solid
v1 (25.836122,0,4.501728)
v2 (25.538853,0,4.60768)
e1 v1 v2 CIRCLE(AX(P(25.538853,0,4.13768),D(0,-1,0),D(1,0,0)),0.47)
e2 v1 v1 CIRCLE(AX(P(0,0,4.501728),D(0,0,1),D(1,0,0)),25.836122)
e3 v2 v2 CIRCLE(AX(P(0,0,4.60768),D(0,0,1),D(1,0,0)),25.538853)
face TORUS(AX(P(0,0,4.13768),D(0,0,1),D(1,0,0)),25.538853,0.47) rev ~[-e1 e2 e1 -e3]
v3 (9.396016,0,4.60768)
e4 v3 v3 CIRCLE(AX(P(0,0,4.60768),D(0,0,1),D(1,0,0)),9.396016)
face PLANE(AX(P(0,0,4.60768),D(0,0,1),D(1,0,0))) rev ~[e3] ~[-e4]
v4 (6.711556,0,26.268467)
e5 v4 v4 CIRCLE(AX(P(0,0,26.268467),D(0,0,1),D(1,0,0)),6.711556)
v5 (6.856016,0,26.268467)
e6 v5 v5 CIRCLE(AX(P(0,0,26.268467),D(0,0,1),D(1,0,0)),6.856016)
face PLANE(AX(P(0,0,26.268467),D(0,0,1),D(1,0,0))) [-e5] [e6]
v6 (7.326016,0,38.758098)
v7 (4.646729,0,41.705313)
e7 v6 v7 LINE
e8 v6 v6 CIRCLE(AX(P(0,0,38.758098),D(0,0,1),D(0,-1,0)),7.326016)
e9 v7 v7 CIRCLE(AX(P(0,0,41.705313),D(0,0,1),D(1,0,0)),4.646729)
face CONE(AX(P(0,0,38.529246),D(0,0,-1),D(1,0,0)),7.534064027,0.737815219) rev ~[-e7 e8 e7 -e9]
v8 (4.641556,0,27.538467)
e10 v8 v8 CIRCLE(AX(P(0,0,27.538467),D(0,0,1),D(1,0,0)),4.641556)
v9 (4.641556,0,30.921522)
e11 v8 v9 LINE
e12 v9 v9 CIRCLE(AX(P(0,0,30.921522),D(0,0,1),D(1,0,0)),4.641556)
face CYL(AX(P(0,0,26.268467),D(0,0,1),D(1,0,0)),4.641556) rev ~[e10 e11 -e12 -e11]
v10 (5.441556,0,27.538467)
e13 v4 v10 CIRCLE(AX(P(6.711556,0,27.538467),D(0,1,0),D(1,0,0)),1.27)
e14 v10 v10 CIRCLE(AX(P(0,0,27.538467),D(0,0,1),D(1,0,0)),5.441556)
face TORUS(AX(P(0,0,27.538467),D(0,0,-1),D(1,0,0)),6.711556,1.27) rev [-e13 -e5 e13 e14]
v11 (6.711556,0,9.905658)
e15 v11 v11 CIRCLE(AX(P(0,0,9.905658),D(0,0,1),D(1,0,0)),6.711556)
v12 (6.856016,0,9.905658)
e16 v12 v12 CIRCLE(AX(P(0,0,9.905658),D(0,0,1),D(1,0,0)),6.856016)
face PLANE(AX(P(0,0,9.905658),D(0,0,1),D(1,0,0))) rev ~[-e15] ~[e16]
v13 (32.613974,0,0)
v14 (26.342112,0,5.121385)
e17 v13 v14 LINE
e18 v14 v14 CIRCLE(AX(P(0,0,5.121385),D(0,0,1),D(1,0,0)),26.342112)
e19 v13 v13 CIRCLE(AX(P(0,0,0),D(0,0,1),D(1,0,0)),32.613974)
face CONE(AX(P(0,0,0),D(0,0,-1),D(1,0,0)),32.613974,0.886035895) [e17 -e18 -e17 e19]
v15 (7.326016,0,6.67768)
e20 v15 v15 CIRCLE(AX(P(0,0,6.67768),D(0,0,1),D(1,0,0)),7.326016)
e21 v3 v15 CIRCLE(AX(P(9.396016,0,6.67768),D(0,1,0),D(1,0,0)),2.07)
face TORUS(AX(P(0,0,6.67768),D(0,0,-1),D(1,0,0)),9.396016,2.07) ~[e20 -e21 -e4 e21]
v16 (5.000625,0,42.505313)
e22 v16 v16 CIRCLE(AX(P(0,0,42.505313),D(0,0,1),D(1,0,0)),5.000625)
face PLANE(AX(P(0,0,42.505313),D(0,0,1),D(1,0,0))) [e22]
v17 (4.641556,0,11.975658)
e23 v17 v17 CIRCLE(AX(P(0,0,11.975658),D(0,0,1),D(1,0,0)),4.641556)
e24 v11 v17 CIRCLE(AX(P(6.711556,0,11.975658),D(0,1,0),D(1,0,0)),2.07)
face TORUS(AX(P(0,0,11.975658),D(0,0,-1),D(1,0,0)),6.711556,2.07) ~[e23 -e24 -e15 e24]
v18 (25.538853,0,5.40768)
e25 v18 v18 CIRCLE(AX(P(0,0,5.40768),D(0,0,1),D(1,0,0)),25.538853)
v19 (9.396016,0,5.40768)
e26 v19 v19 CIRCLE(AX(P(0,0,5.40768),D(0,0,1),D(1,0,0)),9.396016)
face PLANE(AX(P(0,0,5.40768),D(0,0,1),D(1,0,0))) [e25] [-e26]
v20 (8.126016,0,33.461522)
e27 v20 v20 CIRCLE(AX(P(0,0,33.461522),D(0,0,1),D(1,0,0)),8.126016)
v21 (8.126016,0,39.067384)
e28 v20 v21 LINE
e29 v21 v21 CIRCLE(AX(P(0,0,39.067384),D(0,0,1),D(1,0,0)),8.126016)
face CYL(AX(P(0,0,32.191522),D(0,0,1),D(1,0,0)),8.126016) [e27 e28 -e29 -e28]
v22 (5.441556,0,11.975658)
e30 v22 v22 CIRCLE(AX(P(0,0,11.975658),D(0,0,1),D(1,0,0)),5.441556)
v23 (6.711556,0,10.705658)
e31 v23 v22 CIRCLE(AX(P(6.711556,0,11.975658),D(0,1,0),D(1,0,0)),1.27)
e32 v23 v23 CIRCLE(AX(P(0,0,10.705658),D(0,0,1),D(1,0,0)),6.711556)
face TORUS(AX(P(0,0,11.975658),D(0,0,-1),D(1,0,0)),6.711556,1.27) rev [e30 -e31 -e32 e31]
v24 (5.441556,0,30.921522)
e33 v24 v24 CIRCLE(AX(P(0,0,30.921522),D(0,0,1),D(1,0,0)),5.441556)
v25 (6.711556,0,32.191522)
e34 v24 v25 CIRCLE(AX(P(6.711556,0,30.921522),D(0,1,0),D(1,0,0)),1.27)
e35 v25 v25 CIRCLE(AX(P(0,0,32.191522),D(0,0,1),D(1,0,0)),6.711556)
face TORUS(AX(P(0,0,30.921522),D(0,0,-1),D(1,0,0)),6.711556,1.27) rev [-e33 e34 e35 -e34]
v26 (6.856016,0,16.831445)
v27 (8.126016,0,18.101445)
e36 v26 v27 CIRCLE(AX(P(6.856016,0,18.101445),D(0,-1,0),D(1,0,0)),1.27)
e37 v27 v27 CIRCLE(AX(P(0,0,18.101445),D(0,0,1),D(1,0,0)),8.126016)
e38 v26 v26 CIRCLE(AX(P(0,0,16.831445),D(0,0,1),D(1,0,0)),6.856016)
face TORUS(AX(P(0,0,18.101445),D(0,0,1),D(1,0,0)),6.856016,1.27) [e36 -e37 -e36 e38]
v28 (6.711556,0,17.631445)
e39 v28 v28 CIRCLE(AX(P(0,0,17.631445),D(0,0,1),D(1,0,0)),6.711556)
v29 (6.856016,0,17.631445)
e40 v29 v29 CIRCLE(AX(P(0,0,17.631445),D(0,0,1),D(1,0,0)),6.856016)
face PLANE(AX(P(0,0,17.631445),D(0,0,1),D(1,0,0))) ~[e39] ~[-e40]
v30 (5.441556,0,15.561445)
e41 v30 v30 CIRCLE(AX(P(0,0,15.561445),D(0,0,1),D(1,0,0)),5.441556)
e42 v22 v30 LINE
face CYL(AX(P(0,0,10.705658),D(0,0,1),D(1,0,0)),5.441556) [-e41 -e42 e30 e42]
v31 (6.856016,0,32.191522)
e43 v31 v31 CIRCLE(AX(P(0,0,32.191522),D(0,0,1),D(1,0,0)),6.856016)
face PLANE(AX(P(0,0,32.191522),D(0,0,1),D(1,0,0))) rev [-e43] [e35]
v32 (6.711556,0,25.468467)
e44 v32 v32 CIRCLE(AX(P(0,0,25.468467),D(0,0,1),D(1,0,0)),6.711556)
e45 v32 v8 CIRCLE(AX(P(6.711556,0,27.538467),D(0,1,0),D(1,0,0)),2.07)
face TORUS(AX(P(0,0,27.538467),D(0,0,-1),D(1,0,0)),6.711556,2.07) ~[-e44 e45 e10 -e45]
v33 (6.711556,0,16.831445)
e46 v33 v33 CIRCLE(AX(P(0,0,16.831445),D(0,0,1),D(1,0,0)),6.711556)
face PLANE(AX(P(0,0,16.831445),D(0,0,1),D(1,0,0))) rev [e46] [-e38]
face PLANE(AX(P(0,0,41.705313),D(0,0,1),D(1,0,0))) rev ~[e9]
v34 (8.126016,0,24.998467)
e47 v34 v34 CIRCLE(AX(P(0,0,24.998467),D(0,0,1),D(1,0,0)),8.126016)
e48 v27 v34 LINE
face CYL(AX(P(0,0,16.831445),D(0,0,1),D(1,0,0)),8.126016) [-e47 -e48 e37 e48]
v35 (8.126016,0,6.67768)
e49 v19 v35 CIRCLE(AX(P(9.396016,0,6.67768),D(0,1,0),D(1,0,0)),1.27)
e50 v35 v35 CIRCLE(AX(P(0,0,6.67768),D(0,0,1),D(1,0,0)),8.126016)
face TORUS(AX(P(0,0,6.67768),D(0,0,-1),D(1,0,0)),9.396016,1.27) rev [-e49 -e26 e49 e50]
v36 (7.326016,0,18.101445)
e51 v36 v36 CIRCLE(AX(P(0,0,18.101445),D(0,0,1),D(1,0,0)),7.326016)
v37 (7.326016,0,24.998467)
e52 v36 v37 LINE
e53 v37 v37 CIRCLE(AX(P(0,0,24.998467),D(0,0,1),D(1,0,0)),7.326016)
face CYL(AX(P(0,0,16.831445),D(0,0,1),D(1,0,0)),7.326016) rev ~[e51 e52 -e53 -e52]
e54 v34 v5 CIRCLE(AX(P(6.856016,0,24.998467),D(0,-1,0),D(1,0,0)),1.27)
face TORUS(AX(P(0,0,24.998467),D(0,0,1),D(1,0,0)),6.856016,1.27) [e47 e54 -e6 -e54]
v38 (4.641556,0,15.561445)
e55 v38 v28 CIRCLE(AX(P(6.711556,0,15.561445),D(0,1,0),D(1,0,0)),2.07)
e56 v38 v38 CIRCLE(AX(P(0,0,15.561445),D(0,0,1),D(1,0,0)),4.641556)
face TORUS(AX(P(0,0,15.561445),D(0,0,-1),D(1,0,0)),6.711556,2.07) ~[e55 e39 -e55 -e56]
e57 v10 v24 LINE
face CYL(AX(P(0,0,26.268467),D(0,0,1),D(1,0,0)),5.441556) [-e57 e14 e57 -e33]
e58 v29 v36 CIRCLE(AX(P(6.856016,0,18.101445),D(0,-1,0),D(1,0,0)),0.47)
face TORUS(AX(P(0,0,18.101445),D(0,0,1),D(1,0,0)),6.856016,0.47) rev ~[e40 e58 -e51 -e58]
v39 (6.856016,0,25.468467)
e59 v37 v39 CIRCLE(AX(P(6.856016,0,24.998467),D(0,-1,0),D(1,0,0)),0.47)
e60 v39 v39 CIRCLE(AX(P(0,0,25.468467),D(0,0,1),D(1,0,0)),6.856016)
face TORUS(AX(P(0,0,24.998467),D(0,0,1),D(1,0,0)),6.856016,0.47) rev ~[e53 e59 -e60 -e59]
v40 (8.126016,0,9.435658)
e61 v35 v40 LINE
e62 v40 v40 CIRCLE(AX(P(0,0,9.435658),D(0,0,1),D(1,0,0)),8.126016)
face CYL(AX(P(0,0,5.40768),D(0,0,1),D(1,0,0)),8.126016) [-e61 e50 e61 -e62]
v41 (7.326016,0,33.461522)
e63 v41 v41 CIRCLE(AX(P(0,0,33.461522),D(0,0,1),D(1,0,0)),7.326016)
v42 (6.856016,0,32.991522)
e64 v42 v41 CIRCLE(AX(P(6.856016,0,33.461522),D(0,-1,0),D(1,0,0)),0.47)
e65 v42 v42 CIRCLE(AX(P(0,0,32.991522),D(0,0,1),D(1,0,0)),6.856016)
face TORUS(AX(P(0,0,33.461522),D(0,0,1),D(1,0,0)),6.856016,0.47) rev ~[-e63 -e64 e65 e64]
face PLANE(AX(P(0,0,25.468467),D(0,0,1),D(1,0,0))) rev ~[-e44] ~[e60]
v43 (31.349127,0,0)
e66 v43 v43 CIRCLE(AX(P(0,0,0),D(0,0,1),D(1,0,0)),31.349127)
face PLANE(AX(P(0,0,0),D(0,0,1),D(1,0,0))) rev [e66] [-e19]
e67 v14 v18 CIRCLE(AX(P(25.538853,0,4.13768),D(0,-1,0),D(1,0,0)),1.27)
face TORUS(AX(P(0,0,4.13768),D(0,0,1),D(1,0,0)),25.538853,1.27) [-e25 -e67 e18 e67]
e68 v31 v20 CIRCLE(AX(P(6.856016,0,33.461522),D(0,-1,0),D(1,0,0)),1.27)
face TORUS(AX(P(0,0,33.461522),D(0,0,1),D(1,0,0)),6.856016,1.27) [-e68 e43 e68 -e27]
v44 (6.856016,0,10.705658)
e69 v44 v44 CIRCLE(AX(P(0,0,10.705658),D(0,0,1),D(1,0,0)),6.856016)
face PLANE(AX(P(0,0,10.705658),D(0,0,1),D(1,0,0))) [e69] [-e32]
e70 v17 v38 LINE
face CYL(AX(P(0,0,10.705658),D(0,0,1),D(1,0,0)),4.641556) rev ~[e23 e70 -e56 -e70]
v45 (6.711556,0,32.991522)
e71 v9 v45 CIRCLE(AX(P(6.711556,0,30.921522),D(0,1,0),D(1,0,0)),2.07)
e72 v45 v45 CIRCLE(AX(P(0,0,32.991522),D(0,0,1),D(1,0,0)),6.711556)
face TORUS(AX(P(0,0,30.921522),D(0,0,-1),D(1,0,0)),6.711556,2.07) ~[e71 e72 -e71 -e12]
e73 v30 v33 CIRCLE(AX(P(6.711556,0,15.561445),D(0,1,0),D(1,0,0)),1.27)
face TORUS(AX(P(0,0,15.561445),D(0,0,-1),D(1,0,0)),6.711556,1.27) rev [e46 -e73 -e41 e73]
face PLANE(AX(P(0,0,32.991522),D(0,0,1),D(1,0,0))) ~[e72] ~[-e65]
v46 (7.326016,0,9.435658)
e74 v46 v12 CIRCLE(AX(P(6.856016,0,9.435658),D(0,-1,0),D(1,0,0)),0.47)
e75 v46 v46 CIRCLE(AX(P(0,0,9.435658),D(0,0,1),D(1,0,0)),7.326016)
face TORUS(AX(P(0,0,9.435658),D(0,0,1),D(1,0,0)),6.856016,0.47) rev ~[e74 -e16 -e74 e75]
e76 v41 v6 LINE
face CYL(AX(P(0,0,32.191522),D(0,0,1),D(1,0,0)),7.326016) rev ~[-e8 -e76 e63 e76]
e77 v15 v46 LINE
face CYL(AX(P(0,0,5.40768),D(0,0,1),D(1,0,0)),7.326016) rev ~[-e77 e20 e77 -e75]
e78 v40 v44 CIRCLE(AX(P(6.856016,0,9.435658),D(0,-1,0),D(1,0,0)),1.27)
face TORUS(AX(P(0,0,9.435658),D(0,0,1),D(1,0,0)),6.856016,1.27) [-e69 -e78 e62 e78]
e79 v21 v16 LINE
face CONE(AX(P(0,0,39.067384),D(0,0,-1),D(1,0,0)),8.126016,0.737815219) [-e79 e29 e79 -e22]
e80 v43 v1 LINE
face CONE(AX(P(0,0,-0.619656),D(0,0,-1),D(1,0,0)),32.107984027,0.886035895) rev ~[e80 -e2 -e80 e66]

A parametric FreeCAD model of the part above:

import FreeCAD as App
import Part
import Sketcher


def edges_at(feature, points):
    """Names of the edges that pass closest to the given points."""
    edges = feature.Shape.Edges
    near = lambda p: min(range(len(edges)), key=lambda i: edges[i].distToShape(Part.Vertex(*p))[0])
    return sorted({f"Edge{near(p) + 1}" for p in points})


def faces_at(feature, points):
    """Names of the faces that lie closest to the given points."""
    faces = feature.Shape.Faces
    near = lambda p: min(range(len(faces)), key=lambda i: faces[i].distToShape(Part.Vertex(*p))[0])
    return sorted({f"Face{near(p) + 1}" for p in points})

doc = App.newDocument("Part")
body = doc.addObject("PartDesign::Body", "Body")

# Sketch on XZ plane
sketch1 = doc.addObject("Sketcher::SketchObject", "Sketch")
body.addObject(sketch1)
sketch1.AttachmentSupport = (doc.XZ_Plane, [""])
sketch1.MapMode = "FlatFace"
sketch1.addGeometry([
    Part.LineSegment(App.Vector(0, 42.5, 0), App.Vector(0, 0, 0)),  # 0
    Part.LineSegment(App.Vector(0, 0, 0), App.Vector(32.6, 0, 0)),  # 1
    Part.LineSegment(App.Vector(32.6, 0, 0), App.Vector(26, 5.4, 0)),  # 2
    Part.LineSegment(App.Vector(26, 5.4, 0), App.Vector(8.1, 5.4, 0)),  # 3
    Part.LineSegment(App.Vector(8.1, 5.4, 0), App.Vector(8.1, 10.7, 0)),  # 4
    Part.LineSegment(App.Vector(8.1, 10.7, 0), App.Vector(5.4, 10.7, 0)),  # 5
    Part.LineSegment(App.Vector(5.4, 10.7, 0), App.Vector(5.4, 16.8, 0)),  # 6
    Part.LineSegment(App.Vector(5.4, 16.8, 0), App.Vector(8.1, 16.8, 0)),  # 7
    Part.LineSegment(App.Vector(8.1, 16.8, 0), App.Vector(8.1, 26.3, 0)),  # 8
    Part.LineSegment(App.Vector(8.1, 26.3, 0), App.Vector(5.4, 26.3, 0)),  # 9
    Part.LineSegment(App.Vector(5.4, 26.3, 0), App.Vector(5.4, 32.2, 0)),  # 10
    Part.LineSegment(App.Vector(5.4, 32.2, 0), App.Vector(8.1, 32.2, 0)),  # 11
    Part.LineSegment(App.Vector(8.1, 32.2, 0), App.Vector(8.1, 39.1, 0)),  # 12
    Part.LineSegment(App.Vector(8.1, 39.1, 0), App.Vector(5, 42.5, 0)),  # 13
    Part.LineSegment(App.Vector(5, 42.5, 0), App.Vector(0, 42.5, 0)),  # 14
], False)
sketch1.addConstraint([
    Sketcher.Constraint("Coincident", 0, 2, 1, 1),
    Sketcher.Constraint("Coincident", 1, 2, 2, 1),
    Sketcher.Constraint("Coincident", 2, 2, 3, 1),
    Sketcher.Constraint("Coincident", 3, 2, 4, 1),
    Sketcher.Constraint("Coincident", 4, 2, 5, 1),
    Sketcher.Constraint("Coincident", 5, 2, 6, 1),
    Sketcher.Constraint("Coincident", 6, 2, 7, 1),
    Sketcher.Constraint("Coincident", 7, 2, 8, 1),
    Sketcher.Constraint("Coincident", 8, 2, 9, 1),
    Sketcher.Constraint("Coincident", 9, 2, 10, 1),
    Sketcher.Constraint("Coincident", 10, 2, 11, 1),
    Sketcher.Constraint("Coincident", 11, 2, 12, 1),
    Sketcher.Constraint("Coincident", 12, 2, 13, 1),
    Sketcher.Constraint("Coincident", 13, 2, 14, 1),
    Sketcher.Constraint("Coincident", 14, 2, 0, 1),
    Sketcher.Constraint("Vertical", 0),
    Sketcher.Constraint("Horizontal", 1),
    Sketcher.Constraint("Horizontal", 3),
    Sketcher.Constraint("Vertical", 4),
    Sketcher.Constraint("Horizontal", 5),
    Sketcher.Constraint("Vertical", 6),
    Sketcher.Constraint("Horizontal", 7),
    Sketcher.Constraint("Vertical", 8),
    Sketcher.Constraint("Horizontal", 9),
    Sketcher.Constraint("Vertical", 10),
    Sketcher.Constraint("Horizontal", 11),
    Sketcher.Constraint("Vertical", 12),
    Sketcher.Constraint("Horizontal", 14),
    Sketcher.Constraint("Coincident", 0, 2, -1, 1),
    Sketcher.Constraint("Vertical", 4, 2, 7, 2),
    Sketcher.Constraint("Vertical", 6, 2, 9, 2),
    Sketcher.Constraint("Vertical", 8, 2, 11, 2),
    Sketcher.Constraint("DistanceX", 5, 2, 5, 1, 2.68446),
    Sketcher.Constraint("DistanceY", 12, 1, 12, 2, 6.875862),
    Sketcher.Constraint("Distance", 2, 8.549861),
    Sketcher.Constraint("DistanceX", 1, 1, 1, 2, 32.613974),
    Sketcher.Constraint("DistanceX", 3, 2, 3, 1, 17.865487),
    Sketcher.Constraint("DistanceX", 14, 2, 14, 1, 5.000625),
    Sketcher.Constraint("DistanceY", 0, 2, 0, 1, 42.505313),
    Sketcher.Constraint("DistanceY", 4, 1, 4, 2, 5.297978),
    Sketcher.Constraint("DistanceY", 6, 1, 6, 2, 6.125787),
    Sketcher.Constraint("DistanceY", 8, 1, 8, 2, 9.437022),
    Sketcher.Constraint("DistanceY", 10, 1, 10, 2, 5.923055),
    Sketcher.Constraint("DistanceY", -1, 1, 2, 2, 5.40768),
])
revolution = doc.addObject("PartDesign::Revolution", "Revolution")
body.addObject(revolution)
revolution.Profile = sketch1
revolution.ReferenceAxis = (sketch1, ["V_Axis"])
revolution.Angle = 360
doc.recompute()

fillet = doc.addObject("PartDesign::Fillet", "Fillet")
body.addObject(fillet)
fillet.Base = (revolution, edges_at(revolution, [
    (-8.126, 0, 32.192),
    (-8.126, 0, 26.268),
    (-5.442, 0, 26.268),
    (-5.442, 0, 32.192),
    (-5.442, 0, 16.831),
    (-8.126, 0, 16.831),
    (-5.442, 0, 10.706),
    (-8.126, 0, 10.706),
    (-8.126, 0, 5.408),
    (-25.992, 0, 5.408),
]))
fillet.Radius = 1.27
doc.recompute()

thickness = doc.addObject("PartDesign::Thickness", "Thickness")
body.addObject(thickness)
thickness.Base = (fillet, faces_at(fillet, [(0, 0, 0)]))
thickness.Value = 0.8
thickness.Reversed = True
thickness.Join = "Arc"

doc.recompute()
